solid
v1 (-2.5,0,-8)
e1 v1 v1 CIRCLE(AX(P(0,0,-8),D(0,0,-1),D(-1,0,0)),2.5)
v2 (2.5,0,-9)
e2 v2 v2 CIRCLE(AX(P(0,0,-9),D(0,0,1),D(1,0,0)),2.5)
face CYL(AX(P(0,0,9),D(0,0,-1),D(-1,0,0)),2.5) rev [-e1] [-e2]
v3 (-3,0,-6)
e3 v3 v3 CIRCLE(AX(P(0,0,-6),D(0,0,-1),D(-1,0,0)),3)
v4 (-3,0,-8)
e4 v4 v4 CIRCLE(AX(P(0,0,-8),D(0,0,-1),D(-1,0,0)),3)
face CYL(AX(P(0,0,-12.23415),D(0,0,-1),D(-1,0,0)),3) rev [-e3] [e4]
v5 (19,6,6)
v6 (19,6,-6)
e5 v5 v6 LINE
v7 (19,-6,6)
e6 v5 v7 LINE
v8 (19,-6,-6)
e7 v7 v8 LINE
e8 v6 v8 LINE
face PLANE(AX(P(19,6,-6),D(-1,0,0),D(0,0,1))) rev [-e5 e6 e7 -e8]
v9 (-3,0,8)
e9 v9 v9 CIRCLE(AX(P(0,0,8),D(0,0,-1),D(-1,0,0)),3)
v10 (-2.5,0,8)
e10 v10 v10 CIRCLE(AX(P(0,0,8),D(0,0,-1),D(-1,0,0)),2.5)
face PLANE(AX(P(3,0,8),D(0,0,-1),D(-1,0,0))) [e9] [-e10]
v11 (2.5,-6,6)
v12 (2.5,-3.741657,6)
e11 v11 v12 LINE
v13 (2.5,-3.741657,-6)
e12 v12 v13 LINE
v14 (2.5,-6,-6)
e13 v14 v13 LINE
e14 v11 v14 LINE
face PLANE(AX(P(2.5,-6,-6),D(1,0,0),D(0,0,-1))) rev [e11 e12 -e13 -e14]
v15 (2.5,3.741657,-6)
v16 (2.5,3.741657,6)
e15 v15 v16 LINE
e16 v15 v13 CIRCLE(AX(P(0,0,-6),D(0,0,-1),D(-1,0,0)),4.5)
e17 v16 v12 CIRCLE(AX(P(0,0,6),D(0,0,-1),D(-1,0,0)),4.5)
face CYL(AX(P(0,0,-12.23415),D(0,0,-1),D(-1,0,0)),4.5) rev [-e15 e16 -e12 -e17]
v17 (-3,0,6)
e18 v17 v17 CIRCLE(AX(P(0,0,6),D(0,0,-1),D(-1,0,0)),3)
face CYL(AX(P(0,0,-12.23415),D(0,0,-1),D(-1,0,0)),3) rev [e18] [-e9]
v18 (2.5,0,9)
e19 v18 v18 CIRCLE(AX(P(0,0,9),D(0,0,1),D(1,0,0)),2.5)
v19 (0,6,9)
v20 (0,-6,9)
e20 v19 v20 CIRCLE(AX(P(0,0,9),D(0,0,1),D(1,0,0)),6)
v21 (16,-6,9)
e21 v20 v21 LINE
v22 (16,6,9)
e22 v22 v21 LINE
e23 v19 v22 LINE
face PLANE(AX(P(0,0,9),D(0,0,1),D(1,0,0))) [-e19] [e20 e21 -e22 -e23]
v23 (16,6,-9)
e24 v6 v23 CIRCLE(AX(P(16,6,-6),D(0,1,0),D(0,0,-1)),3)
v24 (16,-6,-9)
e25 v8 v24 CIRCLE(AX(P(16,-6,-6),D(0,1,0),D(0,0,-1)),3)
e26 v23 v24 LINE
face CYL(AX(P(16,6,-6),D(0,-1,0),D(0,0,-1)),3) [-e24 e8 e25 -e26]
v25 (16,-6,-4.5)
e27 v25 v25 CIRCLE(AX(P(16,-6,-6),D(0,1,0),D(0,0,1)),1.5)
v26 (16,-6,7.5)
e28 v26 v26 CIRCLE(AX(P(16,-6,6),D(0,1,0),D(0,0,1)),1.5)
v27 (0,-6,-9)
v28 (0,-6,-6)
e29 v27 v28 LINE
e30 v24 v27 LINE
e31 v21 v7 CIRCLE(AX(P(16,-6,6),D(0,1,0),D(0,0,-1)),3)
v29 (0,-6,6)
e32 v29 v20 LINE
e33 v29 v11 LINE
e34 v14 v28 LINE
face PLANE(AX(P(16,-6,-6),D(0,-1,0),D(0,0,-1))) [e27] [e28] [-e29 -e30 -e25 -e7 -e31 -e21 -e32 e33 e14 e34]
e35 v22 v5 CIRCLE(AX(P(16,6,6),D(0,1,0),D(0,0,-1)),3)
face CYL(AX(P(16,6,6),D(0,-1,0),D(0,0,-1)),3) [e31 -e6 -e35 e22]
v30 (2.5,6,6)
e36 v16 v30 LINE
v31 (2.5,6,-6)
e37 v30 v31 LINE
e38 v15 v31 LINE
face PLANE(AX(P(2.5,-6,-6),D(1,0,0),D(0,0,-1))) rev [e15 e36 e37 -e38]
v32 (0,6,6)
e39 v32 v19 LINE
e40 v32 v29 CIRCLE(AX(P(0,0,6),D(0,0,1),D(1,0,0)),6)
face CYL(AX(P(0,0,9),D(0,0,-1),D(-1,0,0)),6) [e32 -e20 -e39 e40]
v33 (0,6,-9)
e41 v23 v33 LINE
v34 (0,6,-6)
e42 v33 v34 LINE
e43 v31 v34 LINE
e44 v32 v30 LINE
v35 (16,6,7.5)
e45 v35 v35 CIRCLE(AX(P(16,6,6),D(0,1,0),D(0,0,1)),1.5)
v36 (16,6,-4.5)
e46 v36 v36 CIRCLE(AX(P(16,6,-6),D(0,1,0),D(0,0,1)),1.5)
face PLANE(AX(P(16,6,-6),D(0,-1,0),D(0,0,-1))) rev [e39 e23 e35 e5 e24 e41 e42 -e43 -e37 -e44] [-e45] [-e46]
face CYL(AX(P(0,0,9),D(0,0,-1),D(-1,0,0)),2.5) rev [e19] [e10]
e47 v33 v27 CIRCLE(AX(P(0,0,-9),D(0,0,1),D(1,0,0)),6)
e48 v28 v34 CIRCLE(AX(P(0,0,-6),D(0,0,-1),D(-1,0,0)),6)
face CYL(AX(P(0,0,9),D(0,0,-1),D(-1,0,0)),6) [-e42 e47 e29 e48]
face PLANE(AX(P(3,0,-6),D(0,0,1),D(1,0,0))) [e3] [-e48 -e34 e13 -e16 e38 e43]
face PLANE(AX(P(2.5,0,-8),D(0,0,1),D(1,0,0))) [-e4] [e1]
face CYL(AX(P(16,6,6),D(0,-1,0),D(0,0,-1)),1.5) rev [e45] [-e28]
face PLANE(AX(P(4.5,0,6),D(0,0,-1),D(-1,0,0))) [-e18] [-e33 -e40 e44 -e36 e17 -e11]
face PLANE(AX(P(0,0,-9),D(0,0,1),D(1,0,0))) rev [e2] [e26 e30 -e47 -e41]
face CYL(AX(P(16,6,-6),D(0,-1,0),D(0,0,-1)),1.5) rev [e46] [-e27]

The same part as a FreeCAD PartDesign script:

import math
import FreeCAD as App
import Part
import Sketcher

doc = App.newDocument("Part")
params = doc.addObject("Spreadsheet::Sheet", "Params")
for row, (alias, value) in enumerate([
    ("sketch1_diameter", "12 mm"),
    ("sketch1_diameter2", "5 mm"),
    ("pad1_length", "18 mm"),
    ("sketch2_diameter", "3 mm"),
    ("sketch2_radius", "3 mm"),
    ("sketch2_width", "16 mm"),
    ("sketch2_height", "18 mm"),
    ("pad2_length", "12 mm"),
    ("sketch3_height", "1 mm"),
    ("sketch3_height2", "18 mm"),
    ("sketch3_height3", "2 mm"),
    ("sketch3_width", "2.5 mm"),
    ("sketch3_width2", "0.5 mm"),
    ("groove_angle", "360 deg"),
    ("sketch4_height", "12 mm"),
    ("sketch4_width", "8.5 mm"),
], start=1):
    params.set(f"A{row}", alias)
    params.set(f"B{row}", "=" + value)
    params.setAlias(f"B{row}", alias)

body = doc.addObject("PartDesign::Body", "Body")

# Sketch on XY plane
sketch1 = body.newObject("Sketcher::SketchObject", "Sketch")
sketch1.AttachmentSupport = (doc.getObject("XY_Plane"), [""])
sketch1.MapMode = "FlatFace"
sketch1.addGeometry([
    Part.Circle(App.Vector(0, 0, 0), App.Vector(0, 0, 1), 6),
    Part.Circle(App.Vector(0, 0, 0), App.Vector(0, 0, 1), 2.5),
], False)
sketch1.addConstraint([
    Sketcher.Constraint("Coincident", 0, 3, -1, 1),
    Sketcher.Constraint("Coincident", 1, 3, -1, 1),
    Sketcher.Constraint("Diameter", 0, 12.0),
    Sketcher.Constraint("Diameter", 1, 5.0),
])
sketch1.setExpression("Constraints[2]", "Params.sketch1_diameter")
sketch1.setExpression("Constraints[3]", "Params.sketch1_diameter2")
pad1 = body.newObject("PartDesign::Pad", "Pad")
pad1.Profile = sketch1
pad1.setExpression("Length", "Params.pad1_length")
pad1.Midplane = True

# Sketch on XZ plane
sketch2 = body.newObject("Sketcher::SketchObject", "Sketch001")
sketch2.AttachmentSupport = (doc.getObject("XZ_Plane"), [""])
sketch2.MapMode = "FlatFace"
sketch2.addGeometry([
    Part.LineSegment(App.Vector(16, -9, 0), App.Vector(0, -9, 0)),  # 0
    Part.LineSegment(App.Vector(0, -9, 0), App.Vector(0, 9, 0)),  # 1
    Part.LineSegment(App.Vector(0, 9, 0), App.Vector(16, 9, 0)),  # 2
    Part.ArcOfCircle(Part.Circle(App.Vector(16, 6, 0), App.Vector(0, 0, 1), 3), math.radians(0), math.radians(90)),  # 3
    Part.LineSegment(App.Vector(19, 6, 0), App.Vector(19, -6, 0)),  # 4
    Part.ArcOfCircle(Part.Circle(App.Vector(16, -6, 0), App.Vector(0, 0, 1), 3), math.radians(-90), math.radians(0)),  # 5
    Part.Circle(App.Vector(16, 6, 0), App.Vector(0, 0, 1), 1.5),  # 6
    Part.Circle(App.Vector(16, -6, 0), App.Vector(0, 0, 1), 1.5),  # 7
], False)
sketch2.addConstraint([
    Sketcher.Constraint("Coincident", 0, 2, 1, 1),
    Sketcher.Constraint("Coincident", 1, 2, 2, 1),
    Sketcher.Constraint("Tangent", 2, 2, 3, 2),
    Sketcher.Constraint("Tangent", 3, 1, 4, 1),
    Sketcher.Constraint("Tangent", 4, 2, 5, 2),
    Sketcher.Constraint("Tangent", 5, 1, 0, 1),
    Sketcher.Constraint("Horizontal", 0),
    Sketcher.Constraint("Vertical", 1),
    Sketcher.Constraint("Horizontal", 2),
    Sketcher.Constraint("Vertical", 4),
    Sketcher.Constraint("Coincident", 6, 3, 3, 3),
    Sketcher.Constraint("Coincident", 7, 3, 5, 3),
    Sketcher.Constraint("Equal", 3, 5),
    Sketcher.Constraint("Equal", 6, 7),
    Sketcher.Constraint("Symmetric", 0, 2, 1, 2, -1, 1),
    Sketcher.Constraint("Diameter", 6, 3.0),
    Sketcher.Constraint("Radius", 3, 3.0),
    Sketcher.Constraint("DistanceX", 0, 2, 0, 1, 16.0),
    Sketcher.Constraint("DistanceY", 1, 1, 1, 2, 18.0),
])
sketch2.setExpression("Constraints[15]", "Params.sketch2_diameter")
sketch2.setExpression("Constraints[16]", "Params.sketch2_radius")
sketch2.setExpression("Constraints[17]", "Params.sketch2_width")
sketch2.setExpression("Constraints[18]", "Params.sketch2_height")
pad2 = body.newObject("PartDesign::Pad", "Pad001")
pad2.Profile = sketch2
pad2.setExpression("Length", "Params.pad2_length")
pad2.Midplane = True

# Sketch on XZ plane
sketch3 = body.newObject("Sketcher::SketchObject", "Sketch002")
sketch3.AttachmentSupport = (doc.getObject("XZ_Plane"), [""])
sketch3.MapMode = "FlatFace"
sketch3.addGeometry([
    Part.LineSegment(App.Vector(2.5, -8, 0), App.Vector(2.5, -9, 0)),  # 0
    Part.LineSegment(App.Vector(2.5, -9, 0), App.Vector(0, -9, 0)),  # 1
    Part.LineSegment(App.Vector(0, -9, 0), App.Vector(0, 9, 0)),  # 2
    Part.LineSegment(App.Vector(0, 9, 0), App.Vector(2.5, 9, 0)),  # 3
    Part.LineSegment(App.Vector(2.5, 9, 0), App.Vector(2.5, 8, 0)),  # 4
    Part.LineSegment(App.Vector(2.5, 8, 0), App.Vector(3, 8, 0)),  # 5
    Part.LineSegment(App.Vector(3, 8, 0), App.Vector(3, 6, 0)),  # 6
    Part.LineSegment(App.Vector(3, 6, 0), App.Vector(4.5, 6, 0)),  # 7
    Part.LineSegment(App.Vector(4.5, 6, 0), App.Vector(4.5, -6, 0)),  # 8
    Part.LineSegment(App.Vector(4.5, -6, 0), App.Vector(3, -6, 0)),  # 9
    Part.LineSegment(App.Vector(3, -6, 0), App.Vector(3, -8, 0)),  # 10
    Part.LineSegment(App.Vector(3, -8, 0), App.Vector(2.5, -8, 0)),  # 11
], False)
sketch3.addConstraint([
    Sketcher.Constraint("Coincident", 0, 2, 1, 1),
    Sketcher.Constraint("Coincident", 1, 2, 2, 1),
    Sketcher.Constraint("Coincident", 2, 2, 3, 1),
    Sketcher.Constraint("Coincident", 3, 2, 4, 1),
    Sketcher.Constraint("Coincident", 4, 2, 5, 1),
    Sketcher.Constraint("Coincident", 5, 2, 6, 1),
    Sketcher.Constraint("Coincident", 6, 2, 7, 1),
    Sketcher.Constraint("Coincident", 7, 2, 8, 1),
    Sketcher.Constraint("Coincident", 8, 2, 9, 1),
    Sketcher.Constraint("Coincident", 9, 2, 10, 1),
    Sketcher.Constraint("Coincident", 10, 2, 11, 1),
    Sketcher.Constraint("Coincident", 11, 2, 0, 1),
    Sketcher.Constraint("Vertical", 0),
    Sketcher.Constraint("Horizontal", 1),
    Sketcher.Constraint("Vertical", 2),
    Sketcher.Constraint("Horizontal", 3),
    Sketcher.Constraint("Vertical", 4),
    Sketcher.Constraint("Horizontal", 5),
    Sketcher.Constraint("Vertical", 6),
    Sketcher.Constraint("Horizontal", 7),
    Sketcher.Constraint("Vertical", 8),
    Sketcher.Constraint("Horizontal", 9),
    Sketcher.Constraint("Vertical", 10),
    Sketcher.Constraint("Horizontal", 11),
    Sketcher.Constraint("Symmetric", 1, 2, 2, 2, -1, 1),
    Sketcher.Constraint("Symmetric", 6, 2, 9, 2, -1),
    Sketcher.Constraint("Symmetric", 4, 2, 11, 2, -1),
    Sketcher.Constraint("DistanceY", 0, 2, 0, 1, 1.0),
    Sketcher.Constraint("DistanceY", 2, 1, 2, 2, 18.0),
    Sketcher.Constraint("DistanceY", 6, 2, 6, 1, 2.0),
    Sketcher.Constraint("DistanceX", 1, 2, 1, 1, 2.5),
    Sketcher.Constraint("DistanceX", 5, 1, 5, 2, 0.5),
    Sketcher.Constraint("DistanceX", 7, 1, 7, 2, 1.5),
])
sketch3.setExpression("Constraints[27]", "Params.sketch3_height")
sketch3.setExpression("Constraints[28]", "Params.sketch3_height2")
sketch3.setExpression("Constraints[29]", "Params.sketch3_height3")
sketch3.setExpression("Constraints[30]", "Params.sketch3_width")
sketch3.setExpression("Constraints[31]", "Params.sketch3_width2")
groove = body.newObject("PartDesign::Groove", "Groove")
groove.Profile = sketch3
groove.ReferenceAxis = (sketch3, ["V_Axis"])
groove.setExpression("Angle", "Params.groove_angle")

# Sketch on XZ plane
sketch4 = body.newObject("Sketcher::SketchObject", "Sketch003")
sketch4.AttachmentSupport = (doc.getObject("XZ_Plane"), [""])
sketch4.MapMode = "FlatFace"
sketch4.addGeometry([
    Part.LineSegment(App.Vector(-6, -6, 0), App.Vector(-6, 6, 0)),
    Part.LineSegment(App.Vector(-6, 6, 0), App.Vector(2, 6, 0)),
    Part.LineSegment(App.Vector(2, 6, 0), App.Vector(2, -6, 0)),
    Part.LineSegment(App.Vector(2, -6, 0), App.Vector(-6, -6, 0)),
], False)
sketch4.addConstraint([
    Sketcher.Constraint("Coincident", 0, 2, 1, 1),
    Sketcher.Constraint("Coincident", 1, 2, 2, 1),
    Sketcher.Constraint("Coincident", 2, 2, 3, 1),
    Sketcher.Constraint("Coincident", 3, 2, 0, 1),
    Sketcher.Constraint("Vertical", 0),
    Sketcher.Constraint("Horizontal", 1),
    Sketcher.Constraint("Vertical", 2),
    Sketcher.Constraint("Horizontal", 3),
    Sketcher.Constraint("DistanceY", 0, 1, 0, 2, 12.0),
    Sketcher.Constraint("DistanceX", 1, 1, 1, 2, 8.5),
    Sketcher.Constraint("DistanceX", 0, 2, -1, 1, 6.0),
    Sketcher.Constraint("DistanceY", -1, 1, 0, 2, 6.0),
])
sketch4.setExpression("Constraints[8]", "Params.sketch4_height")
sketch4.setExpression("Constraints[9]", "Params.sketch4_width")
pocket1 = body.newObject("PartDesign::Pocket", "Pocket")
pocket1.Profile = sketch4
pocket1.Type = "ThroughAll"
pocket1.Midplane = True

doc.recompute()
